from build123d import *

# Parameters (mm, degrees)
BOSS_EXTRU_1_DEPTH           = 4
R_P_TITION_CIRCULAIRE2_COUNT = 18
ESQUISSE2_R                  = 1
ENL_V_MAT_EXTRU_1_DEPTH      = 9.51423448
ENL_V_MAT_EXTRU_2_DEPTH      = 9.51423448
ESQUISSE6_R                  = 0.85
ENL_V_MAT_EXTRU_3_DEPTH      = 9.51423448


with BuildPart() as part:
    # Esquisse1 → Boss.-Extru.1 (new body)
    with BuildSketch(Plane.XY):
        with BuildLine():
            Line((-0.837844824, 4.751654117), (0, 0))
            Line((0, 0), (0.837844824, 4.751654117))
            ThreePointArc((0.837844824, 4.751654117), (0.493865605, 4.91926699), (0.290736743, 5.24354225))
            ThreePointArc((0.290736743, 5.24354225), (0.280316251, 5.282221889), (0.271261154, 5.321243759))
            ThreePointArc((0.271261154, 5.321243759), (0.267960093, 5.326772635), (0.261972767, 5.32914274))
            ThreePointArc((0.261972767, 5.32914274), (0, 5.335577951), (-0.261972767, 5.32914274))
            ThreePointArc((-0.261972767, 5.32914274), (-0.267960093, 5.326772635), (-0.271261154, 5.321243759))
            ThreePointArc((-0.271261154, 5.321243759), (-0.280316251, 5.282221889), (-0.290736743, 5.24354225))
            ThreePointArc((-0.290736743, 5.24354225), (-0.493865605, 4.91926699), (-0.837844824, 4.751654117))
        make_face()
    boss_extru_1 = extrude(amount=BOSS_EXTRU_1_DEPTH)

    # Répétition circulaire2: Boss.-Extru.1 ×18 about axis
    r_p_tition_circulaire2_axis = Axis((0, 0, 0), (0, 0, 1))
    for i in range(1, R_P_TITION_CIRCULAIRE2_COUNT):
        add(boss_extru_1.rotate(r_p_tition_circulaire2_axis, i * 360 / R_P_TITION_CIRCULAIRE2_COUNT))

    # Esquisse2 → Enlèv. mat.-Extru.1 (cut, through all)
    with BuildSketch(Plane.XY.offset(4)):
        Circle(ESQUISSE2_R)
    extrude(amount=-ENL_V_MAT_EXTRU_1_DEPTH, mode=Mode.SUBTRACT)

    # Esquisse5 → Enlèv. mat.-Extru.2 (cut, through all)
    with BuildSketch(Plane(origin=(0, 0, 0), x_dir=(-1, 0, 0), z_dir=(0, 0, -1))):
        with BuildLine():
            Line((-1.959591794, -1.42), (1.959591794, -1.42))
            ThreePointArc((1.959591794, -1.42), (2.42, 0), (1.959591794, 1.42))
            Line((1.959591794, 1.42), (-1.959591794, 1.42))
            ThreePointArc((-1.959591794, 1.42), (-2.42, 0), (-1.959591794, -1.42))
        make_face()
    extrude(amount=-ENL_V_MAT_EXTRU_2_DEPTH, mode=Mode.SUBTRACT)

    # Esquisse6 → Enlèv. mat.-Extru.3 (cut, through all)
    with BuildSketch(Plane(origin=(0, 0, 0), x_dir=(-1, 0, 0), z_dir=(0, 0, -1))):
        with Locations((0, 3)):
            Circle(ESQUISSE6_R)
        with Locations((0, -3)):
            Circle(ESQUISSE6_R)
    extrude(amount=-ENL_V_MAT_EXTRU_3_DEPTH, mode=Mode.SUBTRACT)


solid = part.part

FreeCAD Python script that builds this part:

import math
import FreeCAD as App
import Part
import Sketcher
Q = App.Units.Quantity

doc = App.newDocument("Part")
body = doc.addObject("PartDesign::Body", "Body")

sketch1 = body.newObject("Sketcher::SketchObject", "Sketch")
sketch1.AttachmentSupport = (doc.getObject("XY_Plane"), [""])
sketch1.MapMode = "FlatFace"
sketch1.addGeometry([
    Part.LineSegment(App.Vector(-0.837845, 4.751654, 0), App.Vector(0, 0, 0)),
    Part.LineSegment(App.Vector(0, 0, 0), App.Vector(0.837845, 4.751654, 0)),
    Part.ArcOfCircle(Part.Circle(App.Vector(0.95853, 5.436096, 0), App.Vector(0, 0, 1), 0.695), math.radians(-163.915481), math.radians(-100)),
    Part.ArcOfCircle(Part.Circle(App.Vector(1.386111, 5.559385, 0), App.Vector(0, 0, 1), 1.140001), math.radians(-167.942346), math.radians(-163.915483)),
    Part.ArcOfCircle(Part.Circle(App.Vector(0.261482, 5.319155, 0), App.Vector(0, 0, 1), 0.01), math.radians(12.057651), math.radians(87.185692)),
    Part.ArcOfCircle(Part.Circle(App.Vector(0, 0, 0), App.Vector(0, 0, 1), 5.335578), math.radians(87.18569), math.radians(92.81431)),
    Part.ArcOfCircle(Part.Circle(App.Vector(-0.261482, 5.319155, 0), App.Vector(0, 0, 1), 0.01), math.radians(92.814308), math.radians(167.942349)),
    Part.ArcOfCircle(Part.Circle(App.Vector(-1.386111, 5.559385, 0), App.Vector(0, 0, 1), 1.140001), math.radians(-16.084517), math.radians(-12.057654)),
    Part.ArcOfCircle(Part.Circle(App.Vector(-0.95853, 5.436096, 0), App.Vector(0, 0, 1), 0.695), math.radians(-80), math.radians(-16.084519)),
], False)
sketch1.addConstraint([
    Sketcher.Constraint("Coincident", 0, 2, 1, 1),
    Sketcher.Constraint("Coincident", 1, 2, 2, 2),
    Sketcher.Constraint("Tangent", 2, 1, 3, 2),
    Sketcher.Constraint("Tangent", 3, 1, 4, 1),
    Sketcher.Constraint("Tangent", 4, 2, 5, 1),
    Sketcher.Constraint("Tangent", 5, 2, 6, 1),
    Sketcher.Constraint("Tangent", 6, 2, 7, 2),
    Sketcher.Constraint("Tangent", 7, 1, 8, 2),
    Sketcher.Constraint("Coincident", 8, 1, 0, 1),
    Sketcher.Constraint("Coincident", 5, 3, -1, 1),
    Sketcher.Constraint("Coincident", 0, 2, -1, 1),
    Sketcher.Constraint("Equal", 4, 6),
    Sketcher.Constraint("Equal", 3, 7),
    Sketcher.Constraint("Equal", 2, 8),
    Sketcher.Constraint("Symmetric", 3, 3, 7, 3, -2),
    Sketcher.Constraint("Symmetric", 1, 2, 8, 1, -2),
    Sketcher.Constraint("Angle", 0, Q("-80 deg")),
    Sketcher.Constraint("Radius", 3, Q("1.140001 mm")),
    Sketcher.Constraint("Radius", 4, Q("0.01 mm")),
    Sketcher.Constraint("Radius", 2, Q("0.695 mm")),
    Sketcher.Constraint("Radius", 5, Q("5.335578 mm")),
    Sketcher.Constraint("DistanceY", 1, 2, 4, 3, Q("0.567501 mm")),
    Sketcher.Constraint("DistanceY", 2, 1, 3, 1, Q("0.077702 mm")),
    Sketcher.Constraint("DistanceX", -1, 1, 2, 3, Q("0.95853 mm")),
])
pad1 = body.newObject("PartDesign::Pad", "Pad")
pad1.Profile = sketch1
pad1.Length = 4
doc.recompute()

polarpattern = body.newObject("PartDesign::PolarPattern", "PolarPattern")
polarpattern.Originals = [pad1]
polarpattern.Axis = (doc.getObject("Z_Axis"), [""])
polarpattern.Angle = 360
polarpattern.Occurrences = 18
body.Tip = polarpattern

sketch2 = body.newObject("Sketcher::SketchObject", "Sketch001")
sketch2.AttachmentSupport = (doc.getObject("XY_Plane"), [""])
sketch2.MapMode = "FlatFace"
sketch2.AttachmentOffset = App.Placement(App.Vector(0, 0, 4), App.Rotation())
sketch2.addGeometry(Part.Circle(App.Vector(0, 0, 0), App.Vector(0, 0, 1), 1), False)
sketch2.addConstraint([
    Sketcher.Constraint("Coincident", 0, 3, -1, 1),
    Sketcher.Constraint("Diameter", 0, Q("2 mm")),
])
pocket1 = body.newObject("PartDesign::Pocket", "Pocket")
pocket1.Profile = sketch2
pocket1.Type = "ThroughAll"

sketch3 = body.newObject("Sketcher::SketchObject", "Sketch002")
sketch3.AttachmentSupport = (doc.getObject("XY_Plane"), [""])
sketch3.MapMode = "FlatFace"
sketch3.addGeometry([
    Part.LineSegment(App.Vector(1.959592, -1.42, 0), App.Vector(-1.959592, -1.42, 0)),
    Part.ArcOfCircle(Part.Circle(App.Vector(0, 0, 0), App.Vector(0, 0, 1), 2.42), math.radians(144.071384), math.radians(215.928616)),
    Part.LineSegment(App.Vector(-1.959592, 1.42, 0), App.Vector(1.959592, 1.42, 0)),
    Part.ArcOfCircle(Part.Circle(App.Vector(0, 0, 0), App.Vector(0, 0, 1), 2.42), math.radians(-35.928616), math.radians(35.928616)),
], False)
sketch3.addConstraint([
    Sketcher.Constraint("Coincident", 0, 2, 1, 2),
    Sketcher.Constraint("Coincident", 1, 1, 2, 1),
    Sketcher.Constraint("Coincident", 2, 2, 3, 2),
    Sketcher.Constraint("Coincident", 3, 1, 0, 1),
    Sketcher.Constraint("Horizontal", 0),
    Sketcher.Constraint("Horizontal", 2),
    Sketcher.Constraint("Coincident", 1, 3, -1, 1),
    Sketcher.Constraint("Coincident", 3, 3, -1, 1),
    Sketcher.Constraint("Equal", 1, 3),
    Sketcher.Constraint("Vertical", 0, 2, 1, 1),
    Sketcher.Constraint("Radius", 1, Q("2.42 mm")),
    Sketcher.Constraint("DistanceY", 0, 2, -1, 1, Q("1.42 mm")),
])
pocket2 = body.newObject("PartDesign::Pocket", "Pocket001")
pocket2.Profile = sketch3
pocket2.Type = "ThroughAll"
pocket2.Reversed = True

sketch4 = body.newObject("Sketcher::SketchObject", "Sketch003")
sketch4.AttachmentSupport = (doc.getObject("XY_Plane"), [""])
sketch4.MapMode = "FlatFace"
sketch4.addGeometry([
    Part.Circle(App.Vector(0, 3, 0), App.Vector(0, 0, 1), 0.85),
    Part.Circle(App.Vector(0, -3, 0), App.Vector(0, 0, 1), 0.85),
], False)
sketch4.addConstraint([
    Sketcher.Constraint("Equal", 0, 1),
    Sketcher.Constraint("Symmetric", 0, 3, 1, 3, -1, 1),
    Sketcher.Constraint("PointOnObject", 0, 3, -2),
    Sketcher.Constraint("Diameter", 0, Q("1.7 mm")),
    Sketcher.Constraint("DistanceY", -1, 1, 0, 3, Q("3 mm")),
])
pocket3 = body.newObject("PartDesign::Pocket", "Pocket002")
pocket3.Profile = sketch4
pocket3.Type = "ThroughAll"
pocket3.Reversed = True

doc.recompute()
